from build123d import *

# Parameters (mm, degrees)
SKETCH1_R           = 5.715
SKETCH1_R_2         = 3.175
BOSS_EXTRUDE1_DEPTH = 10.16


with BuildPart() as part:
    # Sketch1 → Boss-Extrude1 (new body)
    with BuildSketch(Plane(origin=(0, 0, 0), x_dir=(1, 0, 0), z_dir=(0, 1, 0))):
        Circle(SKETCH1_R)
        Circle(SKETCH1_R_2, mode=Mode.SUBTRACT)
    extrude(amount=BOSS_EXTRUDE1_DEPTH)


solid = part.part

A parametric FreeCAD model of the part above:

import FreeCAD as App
import Part
import Sketcher
Q = App.Units.Quantity

doc = App.newDocument("Part")
body = doc.addObject("PartDesign::Body", "Body")

# Sketch on XZ plane
sketch1 = doc.addObject("Sketcher::SketchObject", "Sketch")
body.addObject(sketch1)
sketch1.AttachmentSupport = (doc.XZ_Plane, [""])
sketch1.MapMode = "FlatFace"
sketch1.addGeometry(Part.Circle(App.Vector(0, 0, 0), App.Vector(0, 0, 1), 5.715), False)
sketch1.addGeometry(Part.Circle(App.Vector(0, 0, 0), App.Vector(0, 0, 1), 3.175), False)
sketch1.addConstraint(Sketcher.Constraint("Coincident", 0, 3, -1, 1))
sketch1.addConstraint(Sketcher.Constraint("Coincident", 1, 3, -1, 1))
sketch1.addConstraint(Sketcher.Constraint("Diameter", 0, Q("0.45 in")))
sketch1.addConstraint(Sketcher.Constraint("Diameter", 1, Q("0.25 in")))
pad1 = doc.addObject("PartDesign::Pad", "Pad")
body.addObject(pad1)
pad1.Profile = sketch1
pad1.Length = Q("0.4 in")
pad1.Reversed = True

doc.recompute()
